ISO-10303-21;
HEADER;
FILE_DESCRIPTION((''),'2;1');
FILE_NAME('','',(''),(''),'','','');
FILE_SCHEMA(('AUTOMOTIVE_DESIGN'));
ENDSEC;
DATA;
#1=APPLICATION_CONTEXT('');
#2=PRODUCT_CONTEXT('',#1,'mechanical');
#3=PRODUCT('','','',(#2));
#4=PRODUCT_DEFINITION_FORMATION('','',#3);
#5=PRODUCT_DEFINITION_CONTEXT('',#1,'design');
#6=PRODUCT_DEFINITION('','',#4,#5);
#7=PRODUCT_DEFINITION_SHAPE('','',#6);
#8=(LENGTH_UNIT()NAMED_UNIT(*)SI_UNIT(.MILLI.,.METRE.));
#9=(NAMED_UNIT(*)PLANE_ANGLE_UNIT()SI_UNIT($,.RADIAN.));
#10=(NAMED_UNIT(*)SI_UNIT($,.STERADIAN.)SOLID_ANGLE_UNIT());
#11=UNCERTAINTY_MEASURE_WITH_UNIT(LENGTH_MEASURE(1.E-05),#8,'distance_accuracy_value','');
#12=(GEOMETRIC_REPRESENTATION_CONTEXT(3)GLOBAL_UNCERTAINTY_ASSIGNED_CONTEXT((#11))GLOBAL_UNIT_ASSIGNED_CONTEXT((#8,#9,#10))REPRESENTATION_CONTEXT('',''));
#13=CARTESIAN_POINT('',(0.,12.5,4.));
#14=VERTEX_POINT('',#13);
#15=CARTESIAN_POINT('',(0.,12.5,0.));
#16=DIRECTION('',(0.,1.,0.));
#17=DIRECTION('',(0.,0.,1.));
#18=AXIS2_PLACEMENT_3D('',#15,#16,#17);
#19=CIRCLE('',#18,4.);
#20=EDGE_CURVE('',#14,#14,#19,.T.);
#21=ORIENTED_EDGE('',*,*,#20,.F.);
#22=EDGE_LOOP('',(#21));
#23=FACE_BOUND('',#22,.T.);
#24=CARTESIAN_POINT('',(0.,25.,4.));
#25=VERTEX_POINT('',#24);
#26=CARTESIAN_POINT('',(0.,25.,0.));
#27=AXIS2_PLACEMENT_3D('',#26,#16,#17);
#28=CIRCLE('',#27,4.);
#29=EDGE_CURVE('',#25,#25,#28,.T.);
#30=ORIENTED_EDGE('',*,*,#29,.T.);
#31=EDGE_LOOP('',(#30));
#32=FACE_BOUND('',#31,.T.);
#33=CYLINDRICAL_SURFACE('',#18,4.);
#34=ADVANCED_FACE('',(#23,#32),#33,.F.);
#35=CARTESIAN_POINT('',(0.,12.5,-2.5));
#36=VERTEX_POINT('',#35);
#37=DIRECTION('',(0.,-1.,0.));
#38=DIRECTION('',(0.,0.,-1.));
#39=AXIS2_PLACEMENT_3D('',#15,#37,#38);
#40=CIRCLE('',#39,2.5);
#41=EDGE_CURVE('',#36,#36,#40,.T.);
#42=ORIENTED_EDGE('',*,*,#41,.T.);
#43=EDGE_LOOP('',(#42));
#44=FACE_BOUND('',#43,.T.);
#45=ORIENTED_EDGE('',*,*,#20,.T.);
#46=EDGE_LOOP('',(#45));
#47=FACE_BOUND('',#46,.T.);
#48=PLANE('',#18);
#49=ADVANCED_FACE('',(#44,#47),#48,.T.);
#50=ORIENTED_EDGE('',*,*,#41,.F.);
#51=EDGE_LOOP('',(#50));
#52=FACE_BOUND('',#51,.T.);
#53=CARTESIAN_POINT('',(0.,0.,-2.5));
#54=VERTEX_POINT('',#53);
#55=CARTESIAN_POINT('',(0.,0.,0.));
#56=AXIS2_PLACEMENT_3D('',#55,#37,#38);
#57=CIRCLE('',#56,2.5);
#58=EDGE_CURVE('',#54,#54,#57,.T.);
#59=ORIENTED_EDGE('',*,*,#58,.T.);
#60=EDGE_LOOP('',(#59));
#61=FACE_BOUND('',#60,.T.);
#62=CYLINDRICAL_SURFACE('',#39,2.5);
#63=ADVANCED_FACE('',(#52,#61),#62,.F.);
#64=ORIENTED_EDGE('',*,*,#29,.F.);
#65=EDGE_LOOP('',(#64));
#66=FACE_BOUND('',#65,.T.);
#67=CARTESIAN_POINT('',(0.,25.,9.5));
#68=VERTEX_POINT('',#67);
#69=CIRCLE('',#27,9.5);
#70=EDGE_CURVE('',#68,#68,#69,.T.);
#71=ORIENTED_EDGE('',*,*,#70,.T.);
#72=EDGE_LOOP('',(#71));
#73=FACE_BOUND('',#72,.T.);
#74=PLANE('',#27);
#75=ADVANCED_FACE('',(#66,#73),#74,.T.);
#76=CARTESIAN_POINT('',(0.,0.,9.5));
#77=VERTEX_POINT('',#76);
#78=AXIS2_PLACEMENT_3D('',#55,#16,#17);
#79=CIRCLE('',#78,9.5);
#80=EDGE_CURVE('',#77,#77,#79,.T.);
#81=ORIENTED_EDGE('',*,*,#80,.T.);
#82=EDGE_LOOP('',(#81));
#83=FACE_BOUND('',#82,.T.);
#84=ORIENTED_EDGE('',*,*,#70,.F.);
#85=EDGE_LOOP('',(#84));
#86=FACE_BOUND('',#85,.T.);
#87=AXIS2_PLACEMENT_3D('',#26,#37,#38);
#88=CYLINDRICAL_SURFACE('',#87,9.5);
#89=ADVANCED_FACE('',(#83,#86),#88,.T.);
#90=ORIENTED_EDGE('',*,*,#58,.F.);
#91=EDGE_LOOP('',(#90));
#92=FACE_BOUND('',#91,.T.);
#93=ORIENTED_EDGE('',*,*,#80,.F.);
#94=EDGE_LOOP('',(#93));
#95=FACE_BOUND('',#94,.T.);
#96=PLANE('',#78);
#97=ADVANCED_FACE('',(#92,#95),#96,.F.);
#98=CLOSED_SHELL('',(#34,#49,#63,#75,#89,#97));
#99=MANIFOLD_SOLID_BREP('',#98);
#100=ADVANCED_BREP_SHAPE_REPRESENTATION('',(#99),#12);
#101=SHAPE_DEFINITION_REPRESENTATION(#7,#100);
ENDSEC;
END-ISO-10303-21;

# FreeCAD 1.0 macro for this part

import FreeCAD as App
import Part
import Sketcher
from FreeCAD import Vector
Q = App.Units.Quantity

doc = App.newDocument("Part")
params = doc.addObject("Spreadsheet::Sheet", "Params")
for row, (alias, value) in enumerate([
    ("sketch1_diameter", "19 mm"),
    ("pad1_length", "25 mm"),
    ("sketch2_diameter", "8 mm"),
    ("pocket1_length", "12.5 mm"),
    ("sketch3_diameter", "5 mm"),
    ("pocket2_length", "12.5 mm"),
], start=1):
    params.set(f"A{row}", alias)
    params.set(f"B{row}", "=" + value)
    params.setAlias(f"B{row}", alias)

body = doc.addObject("PartDesign::Body", "Body")

sketch1 = body.newObject("Sketcher::SketchObject", "Sketch")
sketch1.AttachmentSupport = (doc.getObject("XZ_Plane"), [""])
sketch1.MapMode = "FlatFace"
sketch1.addGeometry(Part.Circle(Vector(0, 0, 0), Vector(0, 0, 1), 9.5), False)
sketch1.addConstraint([
    Sketcher.Constraint("Coincident", 0, 3, -1, 1),
    Sketcher.Constraint("Diameter", 0, Q("19 mm")),
])
sketch1.setExpression("Constraints[1]", "Params.sketch1_diameter")
pad1 = body.newObject("PartDesign::Pad", "Pad")
pad1.Profile = sketch1
pad1.setExpression("Length", "Params.pad1_length")
pad1.Reversed = True

sketch2 = body.newObject("Sketcher::SketchObject", "Sketch001")
sketch2.AttachmentSupport = (doc.getObject("XZ_Plane"), [""])
sketch2.MapMode = "FlatFace"
sketch2.AttachmentOffset = App.Placement(Vector(0, 0, -25), App.Rotation())
sketch2.addGeometry(Part.Circle(Vector(0, 0, 0), Vector(0, 0, 1), 4), False)
sketch2.addConstraint([
    Sketcher.Constraint("Coincident", 0, 3, -1, 1),
    Sketcher.Constraint("Diameter", 0, Q("8 mm")),
])
sketch2.setExpression("Constraints[1]", "Params.sketch2_diameter")
pocket1 = body.newObject("PartDesign::Pocket", "Pocket")
pocket1.Profile = sketch2
pocket1.setExpression("Length", "Params.pocket1_length")
pocket1.Reversed = True

sketch3 = body.newObject("Sketcher::SketchObject", "Sketch002")
sketch3.AttachmentSupport = (doc.getObject("XZ_Plane"), [""])
sketch3.MapMode = "FlatFace"
sketch3.addGeometry(Part.Circle(Vector(0, 0, 0), Vector(0, 0, 1), 2.5), False)
sketch3.addConstraint([
    Sketcher.Constraint("Coincident", 0, 3, -1, 1),
    Sketcher.Constraint("Diameter", 0, Q("5 mm")),
])
sketch3.setExpression("Constraints[1]", "Params.sketch3_diameter")
pocket2 = body.newObject("PartDesign::Pocket", "Pocket001")
pocket2.Profile = sketch3
pocket2.setExpression("Length", "Params.pocket2_length")

doc.recompute()
